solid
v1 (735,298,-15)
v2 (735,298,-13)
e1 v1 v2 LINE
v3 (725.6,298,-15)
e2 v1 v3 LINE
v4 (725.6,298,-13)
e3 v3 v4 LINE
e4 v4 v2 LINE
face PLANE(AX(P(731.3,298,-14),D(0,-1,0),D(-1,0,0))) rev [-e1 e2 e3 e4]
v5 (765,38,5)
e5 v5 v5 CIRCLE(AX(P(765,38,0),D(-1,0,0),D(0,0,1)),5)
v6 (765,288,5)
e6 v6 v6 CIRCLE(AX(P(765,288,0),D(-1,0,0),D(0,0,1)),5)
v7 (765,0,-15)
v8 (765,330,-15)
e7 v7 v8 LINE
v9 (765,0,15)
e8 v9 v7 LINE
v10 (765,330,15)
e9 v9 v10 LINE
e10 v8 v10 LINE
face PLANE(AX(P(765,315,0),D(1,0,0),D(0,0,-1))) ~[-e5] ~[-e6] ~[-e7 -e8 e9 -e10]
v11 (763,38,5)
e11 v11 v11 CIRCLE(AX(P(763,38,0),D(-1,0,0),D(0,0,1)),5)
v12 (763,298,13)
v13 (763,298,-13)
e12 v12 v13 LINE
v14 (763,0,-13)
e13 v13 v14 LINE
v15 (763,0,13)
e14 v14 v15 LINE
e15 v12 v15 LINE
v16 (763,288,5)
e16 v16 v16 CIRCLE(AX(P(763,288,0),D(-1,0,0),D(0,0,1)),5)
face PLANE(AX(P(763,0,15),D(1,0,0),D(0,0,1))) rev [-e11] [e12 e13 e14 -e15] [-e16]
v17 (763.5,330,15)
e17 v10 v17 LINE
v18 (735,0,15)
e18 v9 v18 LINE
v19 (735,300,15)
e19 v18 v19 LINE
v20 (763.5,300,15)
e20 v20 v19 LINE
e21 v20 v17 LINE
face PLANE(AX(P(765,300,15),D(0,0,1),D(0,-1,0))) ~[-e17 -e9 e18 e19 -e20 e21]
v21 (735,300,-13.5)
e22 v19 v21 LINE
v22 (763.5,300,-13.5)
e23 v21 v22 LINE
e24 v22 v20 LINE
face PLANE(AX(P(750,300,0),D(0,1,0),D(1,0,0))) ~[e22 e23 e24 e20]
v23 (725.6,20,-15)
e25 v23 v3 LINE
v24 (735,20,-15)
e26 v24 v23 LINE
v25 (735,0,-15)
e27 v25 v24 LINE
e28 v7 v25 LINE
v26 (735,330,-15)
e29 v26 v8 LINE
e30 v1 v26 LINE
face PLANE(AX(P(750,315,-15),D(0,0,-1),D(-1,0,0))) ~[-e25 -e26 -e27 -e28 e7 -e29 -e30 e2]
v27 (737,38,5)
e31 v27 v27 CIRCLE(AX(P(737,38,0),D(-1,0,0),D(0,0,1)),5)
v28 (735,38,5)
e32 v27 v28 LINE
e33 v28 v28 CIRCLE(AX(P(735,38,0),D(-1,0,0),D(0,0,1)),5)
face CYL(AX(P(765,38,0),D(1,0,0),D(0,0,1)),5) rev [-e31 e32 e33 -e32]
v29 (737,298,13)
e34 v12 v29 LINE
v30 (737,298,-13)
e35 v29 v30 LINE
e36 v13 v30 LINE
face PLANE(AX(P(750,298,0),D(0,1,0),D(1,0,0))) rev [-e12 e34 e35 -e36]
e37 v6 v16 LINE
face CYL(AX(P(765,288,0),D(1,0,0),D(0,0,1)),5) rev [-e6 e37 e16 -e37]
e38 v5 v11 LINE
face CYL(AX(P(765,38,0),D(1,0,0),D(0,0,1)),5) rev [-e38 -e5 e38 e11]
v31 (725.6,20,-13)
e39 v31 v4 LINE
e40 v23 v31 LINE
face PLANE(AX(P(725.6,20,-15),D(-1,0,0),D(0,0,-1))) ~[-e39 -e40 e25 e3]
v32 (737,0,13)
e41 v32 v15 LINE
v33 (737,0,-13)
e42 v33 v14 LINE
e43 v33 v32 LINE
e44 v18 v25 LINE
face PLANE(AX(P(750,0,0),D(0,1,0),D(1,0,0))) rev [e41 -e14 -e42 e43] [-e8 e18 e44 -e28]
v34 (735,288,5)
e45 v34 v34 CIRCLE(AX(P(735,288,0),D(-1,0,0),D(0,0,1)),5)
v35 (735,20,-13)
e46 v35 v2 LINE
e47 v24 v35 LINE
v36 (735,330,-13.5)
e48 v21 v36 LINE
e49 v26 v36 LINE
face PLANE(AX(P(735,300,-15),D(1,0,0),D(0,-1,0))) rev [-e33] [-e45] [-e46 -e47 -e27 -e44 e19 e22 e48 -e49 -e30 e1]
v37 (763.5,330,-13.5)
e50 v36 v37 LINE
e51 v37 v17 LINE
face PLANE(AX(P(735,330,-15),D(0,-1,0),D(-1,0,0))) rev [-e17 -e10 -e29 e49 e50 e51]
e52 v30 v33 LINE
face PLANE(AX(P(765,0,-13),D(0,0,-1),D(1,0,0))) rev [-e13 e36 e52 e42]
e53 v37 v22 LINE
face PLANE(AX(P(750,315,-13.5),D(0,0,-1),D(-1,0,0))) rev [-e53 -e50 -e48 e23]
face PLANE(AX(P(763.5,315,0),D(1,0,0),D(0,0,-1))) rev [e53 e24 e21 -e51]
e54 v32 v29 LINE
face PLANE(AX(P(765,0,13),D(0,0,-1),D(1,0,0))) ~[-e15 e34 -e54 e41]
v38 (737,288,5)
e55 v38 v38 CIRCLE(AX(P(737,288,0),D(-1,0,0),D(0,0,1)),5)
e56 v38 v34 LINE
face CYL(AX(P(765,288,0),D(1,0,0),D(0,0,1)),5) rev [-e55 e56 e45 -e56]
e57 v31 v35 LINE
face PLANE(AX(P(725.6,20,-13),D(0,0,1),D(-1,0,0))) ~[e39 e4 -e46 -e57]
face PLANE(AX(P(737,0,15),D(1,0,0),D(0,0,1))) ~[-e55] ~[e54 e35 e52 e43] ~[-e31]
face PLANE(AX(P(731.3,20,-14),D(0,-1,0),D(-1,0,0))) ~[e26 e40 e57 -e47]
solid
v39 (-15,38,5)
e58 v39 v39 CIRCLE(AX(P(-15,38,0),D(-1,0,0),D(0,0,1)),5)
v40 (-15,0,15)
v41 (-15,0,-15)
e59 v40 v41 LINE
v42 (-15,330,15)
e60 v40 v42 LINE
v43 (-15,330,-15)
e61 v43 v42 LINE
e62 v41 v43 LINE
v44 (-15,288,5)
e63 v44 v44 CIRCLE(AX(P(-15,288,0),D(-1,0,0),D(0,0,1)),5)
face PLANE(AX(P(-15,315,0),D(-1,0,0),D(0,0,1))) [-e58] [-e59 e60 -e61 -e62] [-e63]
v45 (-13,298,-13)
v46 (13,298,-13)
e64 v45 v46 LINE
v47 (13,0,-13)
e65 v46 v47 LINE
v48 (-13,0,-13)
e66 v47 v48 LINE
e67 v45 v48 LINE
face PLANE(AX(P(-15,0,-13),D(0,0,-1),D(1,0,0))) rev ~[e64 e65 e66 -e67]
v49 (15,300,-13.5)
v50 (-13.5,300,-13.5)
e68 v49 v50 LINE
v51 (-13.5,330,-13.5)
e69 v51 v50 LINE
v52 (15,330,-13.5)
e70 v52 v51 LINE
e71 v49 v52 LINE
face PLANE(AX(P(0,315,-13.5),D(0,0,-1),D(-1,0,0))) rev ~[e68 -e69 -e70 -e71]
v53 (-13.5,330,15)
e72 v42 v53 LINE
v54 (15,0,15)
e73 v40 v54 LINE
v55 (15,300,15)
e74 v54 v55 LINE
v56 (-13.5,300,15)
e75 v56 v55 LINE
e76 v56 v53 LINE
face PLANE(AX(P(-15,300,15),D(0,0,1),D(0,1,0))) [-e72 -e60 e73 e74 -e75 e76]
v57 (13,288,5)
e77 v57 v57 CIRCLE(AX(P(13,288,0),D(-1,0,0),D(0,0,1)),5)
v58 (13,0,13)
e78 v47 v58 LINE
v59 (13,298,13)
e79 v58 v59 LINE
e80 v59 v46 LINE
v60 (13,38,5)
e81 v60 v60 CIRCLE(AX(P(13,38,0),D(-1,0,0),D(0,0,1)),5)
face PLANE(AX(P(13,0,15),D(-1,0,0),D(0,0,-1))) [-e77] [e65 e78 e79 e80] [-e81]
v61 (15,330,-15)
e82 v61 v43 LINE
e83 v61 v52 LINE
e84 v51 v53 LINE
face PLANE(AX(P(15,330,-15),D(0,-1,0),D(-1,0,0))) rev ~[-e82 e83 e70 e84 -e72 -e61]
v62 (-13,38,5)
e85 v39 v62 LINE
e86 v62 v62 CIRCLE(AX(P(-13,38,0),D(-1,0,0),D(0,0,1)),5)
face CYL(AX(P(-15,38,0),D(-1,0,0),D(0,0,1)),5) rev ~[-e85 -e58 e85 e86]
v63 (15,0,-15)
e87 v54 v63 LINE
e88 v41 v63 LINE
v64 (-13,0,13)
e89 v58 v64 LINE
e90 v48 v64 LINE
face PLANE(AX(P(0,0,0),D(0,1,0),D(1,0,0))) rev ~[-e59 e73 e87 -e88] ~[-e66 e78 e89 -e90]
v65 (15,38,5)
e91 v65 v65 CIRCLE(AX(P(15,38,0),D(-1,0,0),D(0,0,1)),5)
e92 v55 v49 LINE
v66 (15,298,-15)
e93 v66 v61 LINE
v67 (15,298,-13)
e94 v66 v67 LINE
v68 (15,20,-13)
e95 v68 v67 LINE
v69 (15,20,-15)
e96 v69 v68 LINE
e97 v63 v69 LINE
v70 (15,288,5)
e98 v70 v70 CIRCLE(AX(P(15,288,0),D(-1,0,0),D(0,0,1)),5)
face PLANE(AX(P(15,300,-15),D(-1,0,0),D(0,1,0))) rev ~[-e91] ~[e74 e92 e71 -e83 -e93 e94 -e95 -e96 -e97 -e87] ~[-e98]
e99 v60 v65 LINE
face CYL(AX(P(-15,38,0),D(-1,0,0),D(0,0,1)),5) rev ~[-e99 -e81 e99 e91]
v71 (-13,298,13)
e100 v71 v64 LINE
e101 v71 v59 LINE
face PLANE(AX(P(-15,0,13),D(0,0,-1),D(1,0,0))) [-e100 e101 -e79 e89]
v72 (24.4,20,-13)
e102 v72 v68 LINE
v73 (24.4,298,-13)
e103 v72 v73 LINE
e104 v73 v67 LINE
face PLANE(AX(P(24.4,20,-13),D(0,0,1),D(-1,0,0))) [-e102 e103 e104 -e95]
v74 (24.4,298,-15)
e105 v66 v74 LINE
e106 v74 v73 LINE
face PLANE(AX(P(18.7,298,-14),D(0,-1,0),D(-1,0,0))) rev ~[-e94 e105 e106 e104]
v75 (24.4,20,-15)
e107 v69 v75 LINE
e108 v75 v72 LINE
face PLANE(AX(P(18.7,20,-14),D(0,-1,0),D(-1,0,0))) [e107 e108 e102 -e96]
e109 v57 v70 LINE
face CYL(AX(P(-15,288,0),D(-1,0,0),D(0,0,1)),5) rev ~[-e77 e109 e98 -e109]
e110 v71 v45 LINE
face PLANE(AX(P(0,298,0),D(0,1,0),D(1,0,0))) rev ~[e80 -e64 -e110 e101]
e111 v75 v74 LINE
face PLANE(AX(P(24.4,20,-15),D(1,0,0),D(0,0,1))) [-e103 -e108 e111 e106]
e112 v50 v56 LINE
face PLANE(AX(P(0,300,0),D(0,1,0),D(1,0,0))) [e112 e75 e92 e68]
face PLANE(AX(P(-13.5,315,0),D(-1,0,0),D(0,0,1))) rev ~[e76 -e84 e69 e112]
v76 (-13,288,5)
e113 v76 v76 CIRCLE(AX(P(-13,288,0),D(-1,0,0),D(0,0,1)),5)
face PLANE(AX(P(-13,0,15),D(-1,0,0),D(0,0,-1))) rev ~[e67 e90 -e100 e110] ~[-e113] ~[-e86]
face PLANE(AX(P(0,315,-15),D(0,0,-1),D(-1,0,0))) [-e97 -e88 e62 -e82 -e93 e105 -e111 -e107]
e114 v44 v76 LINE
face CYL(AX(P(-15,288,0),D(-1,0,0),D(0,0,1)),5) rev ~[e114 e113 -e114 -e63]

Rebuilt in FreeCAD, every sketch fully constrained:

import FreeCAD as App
import Part
import Sketcher


def faces_at(feature, points):
    """Names of the faces that lie closest to the given points."""
    faces = feature.Shape.Faces
    near = lambda p: min(range(len(faces)), key=lambda i: faces[i].distToShape(Part.Vertex(*p))[0])
    return sorted({f"Face{near(p) + 1}" for p in points})


def add_polygon(sketch, points):
    """Adds a closed chain of lines whose ends are joined by coincident constraints."""
    first, n = sketch.GeometryCount, len(points)
    for a, b in zip(points, points[1:] + points[:1]):
        sketch.addGeometry(Part.LineSegment(App.Vector(*a, 0), App.Vector(*b, 0)), False)
    for i in range(n):
        sketch.addConstraint(Sketcher.Constraint("Coincident", first + i, 2, first + (i + 1) % n, 1))

doc = App.newDocument("Part")
body = doc.addObject("PartDesign::Body", "Body")

# Sketch on XZ plane
sketch1 = doc.addObject("Sketcher::SketchObject", "Sketch")
body.addObject(sketch1)
sketch1.AttachmentSupport = (doc.XZ_Plane, [""])
sketch1.MapMode = "FlatFace"
add_polygon(sketch1, [(-15, -15), (-15, 15), (15, 15), (15, -15)])  # lines 0-3
sketch1.addConstraint([
    Sketcher.Constraint("Vertical", 0),
    Sketcher.Constraint("Horizontal", 1),
    Sketcher.Constraint("Vertical", 2),
    Sketcher.Constraint("Horizontal", 3),
    Sketcher.Constraint("Symmetric", 0, 2, 2, 2, -1, 1),
    Sketcher.Constraint("Equal", 3, 0),
    Sketcher.Constraint("DistanceX", 1, 1, 1, 2, 30.0),
])
pad1 = doc.addObject("PartDesign::Pad", "Pad")
body.addObject(pad1)
pad1.Profile = sketch1
pad1.Length = 300
pad1.Reversed = True
doc.recompute()

thickness = doc.addObject("PartDesign::Thickness", "Thickness")
body.addObject(thickness)
thickness.Base = (pad1, faces_at(pad1, [(0, 0, 0)]))
thickness.Value = 2
thickness.Reversed = True
thickness.Join = "Intersection"
body2 = doc.addObject("PartDesign::Body", "Body001")

# Sketch on YZ plane
sketch2 = doc.addObject("Sketcher::SketchObject", "Sketch001")
body2.addObject(sketch2)
sketch2.AttachmentSupport = (doc.getObject("YZ_Plane001"), [""])
sketch2.MapMode = "FlatFace"
sketch2.AttachmentOffset = App.Placement(App.Vector(0, 0, -15), App.Rotation())
add_polygon(sketch2, [(330, -15), (300, -15), (300, 15), (330, 15)])  # lines 0-3
sketch2.addConstraint([
    Sketcher.Constraint("Horizontal", 0),
    Sketcher.Constraint("Vertical", 1),
    Sketcher.Constraint("Horizontal", 2),
    Sketcher.Constraint("Vertical", 3),
    Sketcher.Constraint("Equal", 2, 1),
    Sketcher.Constraint("DistanceX", 0, 2, 0, 1, 30.0),
    Sketcher.Constraint("DistanceX", -1, 1, 0, 2, 300.0),
    Sketcher.Constraint("DistanceY", 0, 2, -1, 1, 15.0),
])
pad2 = doc.addObject("PartDesign::Pad", "Pad001")
body2.addObject(pad2)
pad2.Profile = sketch2
pad2.Length = 1.5
doc.recompute()

boolean = doc.addObject("PartDesign::Boolean", "Boolean")
body.addObject(boolean)
boolean.Type = "Fuse"
boolean.addObjects([body2])

# Sketch on XY plane
sketch3 = doc.addObject("Sketcher::SketchObject", "Sketch002")
body.addObject(sketch3)
sketch3.AttachmentSupport = (doc.XY_Plane, [""])
sketch3.MapMode = "FlatFace"
sketch3.AttachmentOffset = App.Placement(App.Vector(0, 0, -15), App.Rotation())
add_polygon(sketch3, [(15, 330), (15, 300), (-15, 300), (-15, 330)])  # lines 0-3
sketch3.addConstraint([
    Sketcher.Constraint("Vertical", 0),
    Sketcher.Constraint("Horizontal", 1),
    Sketcher.Constraint("Vertical", 2),
    Sketcher.Constraint("Horizontal", 3),
    Sketcher.Constraint("Equal", 3, 0),
    Sketcher.Constraint("DistanceX", 1, 2, 1, 1, 30.0),
    Sketcher.Constraint("DistanceX", -1, 1, 0, 2, 15.0),
    Sketcher.Constraint("DistanceY", -1, 1, 0, 2, 300.0),
])
pad3 = doc.addObject("PartDesign::Pad", "Pad002")
body.addObject(pad3)
pad3.Profile = sketch3
pad3.Length = 1.5

# Sketch on YZ plane
sketch4 = doc.addObject("Sketcher::SketchObject", "Sketch003")
body.addObject(sketch4)
sketch4.AttachmentSupport = (doc.YZ_Plane, [""])
sketch4.MapMode = "FlatFace"
sketch4.AttachmentOffset = App.Placement(App.Vector(0, 0, -15), App.Rotation())
sketch4.addGeometry([
    Part.Circle(App.Vector(288, 0, 0), App.Vector(0, 0, 1), 5),
    Part.Circle(App.Vector(38, 0, 0), App.Vector(0, 0, 1), 5),
], False)
sketch4.addConstraint([
    Sketcher.Constraint("Equal", 0, 1),
    Sketcher.Constraint("PointOnObject", 0, 3, -1),
    Sketcher.Constraint("PointOnObject", 1, 3, -1),
    Sketcher.Constraint("Diameter", 0, 10.0),
    Sketcher.Constraint("DistanceX", -1, 1, 0, 3, 288.0),
    Sketcher.Constraint("DistanceX", -1, 1, 1, 3, 38.0),
])
pocket1 = doc.addObject("PartDesign::Pocket", "Pocket")
body.addObject(pocket1)
pocket1.Profile = sketch4
pocket1.Type = "ThroughAll"
pocket1.Reversed = True

# Sketch on XZ plane
sketch5 = doc.addObject("Sketcher::SketchObject", "Sketch004")
body.addObject(sketch5)
sketch5.AttachmentSupport = (doc.XZ_Plane, [""])
sketch5.MapMode = "FlatFace"
sketch5.AttachmentOffset = App.Placement(App.Vector(0, 0, -20), App.Rotation())
add_polygon(sketch5, [(13, -13), (13, -15), (24.4, -15), (24.4, -13)])  # lines 0-3
sketch5.addConstraint([
    Sketcher.Constraint("Vertical", 0),
    Sketcher.Constraint("Horizontal", 1),
    Sketcher.Constraint("Vertical", 2),
    Sketcher.Constraint("Horizontal", 3),
    Sketcher.Constraint("DistanceY", 0, 2, 0, 1, 2.0),
    Sketcher.Constraint("DistanceX", 1, 1, 1, 2, 11.4),
    Sketcher.Constraint("DistanceX", -1, 1, 0, 2, 13.0),
    Sketcher.Constraint("DistanceY", 0, 2, -1, 1, 15.0),
])
pad4 = doc.addObject("PartDesign::Pad", "Pad003")
body.addObject(pad4)
pad4.Profile = sketch5
pad4.Length = 278
pad4.Reversed = True
body3 = doc.addObject("PartDesign::Body", "Body002")
doc.recompute()

mirroring = doc.addObject("Part::Mirroring", "Mirroring")
mirroring.Source = body
mirroring.Base = App.Vector(375, 0, 0)
mirroring.Normal = App.Vector(-1, 0, 0)
body3.BaseFeature = mirroring
doc.recompute()
mirroring.Visibility = False

doc.recompute()
